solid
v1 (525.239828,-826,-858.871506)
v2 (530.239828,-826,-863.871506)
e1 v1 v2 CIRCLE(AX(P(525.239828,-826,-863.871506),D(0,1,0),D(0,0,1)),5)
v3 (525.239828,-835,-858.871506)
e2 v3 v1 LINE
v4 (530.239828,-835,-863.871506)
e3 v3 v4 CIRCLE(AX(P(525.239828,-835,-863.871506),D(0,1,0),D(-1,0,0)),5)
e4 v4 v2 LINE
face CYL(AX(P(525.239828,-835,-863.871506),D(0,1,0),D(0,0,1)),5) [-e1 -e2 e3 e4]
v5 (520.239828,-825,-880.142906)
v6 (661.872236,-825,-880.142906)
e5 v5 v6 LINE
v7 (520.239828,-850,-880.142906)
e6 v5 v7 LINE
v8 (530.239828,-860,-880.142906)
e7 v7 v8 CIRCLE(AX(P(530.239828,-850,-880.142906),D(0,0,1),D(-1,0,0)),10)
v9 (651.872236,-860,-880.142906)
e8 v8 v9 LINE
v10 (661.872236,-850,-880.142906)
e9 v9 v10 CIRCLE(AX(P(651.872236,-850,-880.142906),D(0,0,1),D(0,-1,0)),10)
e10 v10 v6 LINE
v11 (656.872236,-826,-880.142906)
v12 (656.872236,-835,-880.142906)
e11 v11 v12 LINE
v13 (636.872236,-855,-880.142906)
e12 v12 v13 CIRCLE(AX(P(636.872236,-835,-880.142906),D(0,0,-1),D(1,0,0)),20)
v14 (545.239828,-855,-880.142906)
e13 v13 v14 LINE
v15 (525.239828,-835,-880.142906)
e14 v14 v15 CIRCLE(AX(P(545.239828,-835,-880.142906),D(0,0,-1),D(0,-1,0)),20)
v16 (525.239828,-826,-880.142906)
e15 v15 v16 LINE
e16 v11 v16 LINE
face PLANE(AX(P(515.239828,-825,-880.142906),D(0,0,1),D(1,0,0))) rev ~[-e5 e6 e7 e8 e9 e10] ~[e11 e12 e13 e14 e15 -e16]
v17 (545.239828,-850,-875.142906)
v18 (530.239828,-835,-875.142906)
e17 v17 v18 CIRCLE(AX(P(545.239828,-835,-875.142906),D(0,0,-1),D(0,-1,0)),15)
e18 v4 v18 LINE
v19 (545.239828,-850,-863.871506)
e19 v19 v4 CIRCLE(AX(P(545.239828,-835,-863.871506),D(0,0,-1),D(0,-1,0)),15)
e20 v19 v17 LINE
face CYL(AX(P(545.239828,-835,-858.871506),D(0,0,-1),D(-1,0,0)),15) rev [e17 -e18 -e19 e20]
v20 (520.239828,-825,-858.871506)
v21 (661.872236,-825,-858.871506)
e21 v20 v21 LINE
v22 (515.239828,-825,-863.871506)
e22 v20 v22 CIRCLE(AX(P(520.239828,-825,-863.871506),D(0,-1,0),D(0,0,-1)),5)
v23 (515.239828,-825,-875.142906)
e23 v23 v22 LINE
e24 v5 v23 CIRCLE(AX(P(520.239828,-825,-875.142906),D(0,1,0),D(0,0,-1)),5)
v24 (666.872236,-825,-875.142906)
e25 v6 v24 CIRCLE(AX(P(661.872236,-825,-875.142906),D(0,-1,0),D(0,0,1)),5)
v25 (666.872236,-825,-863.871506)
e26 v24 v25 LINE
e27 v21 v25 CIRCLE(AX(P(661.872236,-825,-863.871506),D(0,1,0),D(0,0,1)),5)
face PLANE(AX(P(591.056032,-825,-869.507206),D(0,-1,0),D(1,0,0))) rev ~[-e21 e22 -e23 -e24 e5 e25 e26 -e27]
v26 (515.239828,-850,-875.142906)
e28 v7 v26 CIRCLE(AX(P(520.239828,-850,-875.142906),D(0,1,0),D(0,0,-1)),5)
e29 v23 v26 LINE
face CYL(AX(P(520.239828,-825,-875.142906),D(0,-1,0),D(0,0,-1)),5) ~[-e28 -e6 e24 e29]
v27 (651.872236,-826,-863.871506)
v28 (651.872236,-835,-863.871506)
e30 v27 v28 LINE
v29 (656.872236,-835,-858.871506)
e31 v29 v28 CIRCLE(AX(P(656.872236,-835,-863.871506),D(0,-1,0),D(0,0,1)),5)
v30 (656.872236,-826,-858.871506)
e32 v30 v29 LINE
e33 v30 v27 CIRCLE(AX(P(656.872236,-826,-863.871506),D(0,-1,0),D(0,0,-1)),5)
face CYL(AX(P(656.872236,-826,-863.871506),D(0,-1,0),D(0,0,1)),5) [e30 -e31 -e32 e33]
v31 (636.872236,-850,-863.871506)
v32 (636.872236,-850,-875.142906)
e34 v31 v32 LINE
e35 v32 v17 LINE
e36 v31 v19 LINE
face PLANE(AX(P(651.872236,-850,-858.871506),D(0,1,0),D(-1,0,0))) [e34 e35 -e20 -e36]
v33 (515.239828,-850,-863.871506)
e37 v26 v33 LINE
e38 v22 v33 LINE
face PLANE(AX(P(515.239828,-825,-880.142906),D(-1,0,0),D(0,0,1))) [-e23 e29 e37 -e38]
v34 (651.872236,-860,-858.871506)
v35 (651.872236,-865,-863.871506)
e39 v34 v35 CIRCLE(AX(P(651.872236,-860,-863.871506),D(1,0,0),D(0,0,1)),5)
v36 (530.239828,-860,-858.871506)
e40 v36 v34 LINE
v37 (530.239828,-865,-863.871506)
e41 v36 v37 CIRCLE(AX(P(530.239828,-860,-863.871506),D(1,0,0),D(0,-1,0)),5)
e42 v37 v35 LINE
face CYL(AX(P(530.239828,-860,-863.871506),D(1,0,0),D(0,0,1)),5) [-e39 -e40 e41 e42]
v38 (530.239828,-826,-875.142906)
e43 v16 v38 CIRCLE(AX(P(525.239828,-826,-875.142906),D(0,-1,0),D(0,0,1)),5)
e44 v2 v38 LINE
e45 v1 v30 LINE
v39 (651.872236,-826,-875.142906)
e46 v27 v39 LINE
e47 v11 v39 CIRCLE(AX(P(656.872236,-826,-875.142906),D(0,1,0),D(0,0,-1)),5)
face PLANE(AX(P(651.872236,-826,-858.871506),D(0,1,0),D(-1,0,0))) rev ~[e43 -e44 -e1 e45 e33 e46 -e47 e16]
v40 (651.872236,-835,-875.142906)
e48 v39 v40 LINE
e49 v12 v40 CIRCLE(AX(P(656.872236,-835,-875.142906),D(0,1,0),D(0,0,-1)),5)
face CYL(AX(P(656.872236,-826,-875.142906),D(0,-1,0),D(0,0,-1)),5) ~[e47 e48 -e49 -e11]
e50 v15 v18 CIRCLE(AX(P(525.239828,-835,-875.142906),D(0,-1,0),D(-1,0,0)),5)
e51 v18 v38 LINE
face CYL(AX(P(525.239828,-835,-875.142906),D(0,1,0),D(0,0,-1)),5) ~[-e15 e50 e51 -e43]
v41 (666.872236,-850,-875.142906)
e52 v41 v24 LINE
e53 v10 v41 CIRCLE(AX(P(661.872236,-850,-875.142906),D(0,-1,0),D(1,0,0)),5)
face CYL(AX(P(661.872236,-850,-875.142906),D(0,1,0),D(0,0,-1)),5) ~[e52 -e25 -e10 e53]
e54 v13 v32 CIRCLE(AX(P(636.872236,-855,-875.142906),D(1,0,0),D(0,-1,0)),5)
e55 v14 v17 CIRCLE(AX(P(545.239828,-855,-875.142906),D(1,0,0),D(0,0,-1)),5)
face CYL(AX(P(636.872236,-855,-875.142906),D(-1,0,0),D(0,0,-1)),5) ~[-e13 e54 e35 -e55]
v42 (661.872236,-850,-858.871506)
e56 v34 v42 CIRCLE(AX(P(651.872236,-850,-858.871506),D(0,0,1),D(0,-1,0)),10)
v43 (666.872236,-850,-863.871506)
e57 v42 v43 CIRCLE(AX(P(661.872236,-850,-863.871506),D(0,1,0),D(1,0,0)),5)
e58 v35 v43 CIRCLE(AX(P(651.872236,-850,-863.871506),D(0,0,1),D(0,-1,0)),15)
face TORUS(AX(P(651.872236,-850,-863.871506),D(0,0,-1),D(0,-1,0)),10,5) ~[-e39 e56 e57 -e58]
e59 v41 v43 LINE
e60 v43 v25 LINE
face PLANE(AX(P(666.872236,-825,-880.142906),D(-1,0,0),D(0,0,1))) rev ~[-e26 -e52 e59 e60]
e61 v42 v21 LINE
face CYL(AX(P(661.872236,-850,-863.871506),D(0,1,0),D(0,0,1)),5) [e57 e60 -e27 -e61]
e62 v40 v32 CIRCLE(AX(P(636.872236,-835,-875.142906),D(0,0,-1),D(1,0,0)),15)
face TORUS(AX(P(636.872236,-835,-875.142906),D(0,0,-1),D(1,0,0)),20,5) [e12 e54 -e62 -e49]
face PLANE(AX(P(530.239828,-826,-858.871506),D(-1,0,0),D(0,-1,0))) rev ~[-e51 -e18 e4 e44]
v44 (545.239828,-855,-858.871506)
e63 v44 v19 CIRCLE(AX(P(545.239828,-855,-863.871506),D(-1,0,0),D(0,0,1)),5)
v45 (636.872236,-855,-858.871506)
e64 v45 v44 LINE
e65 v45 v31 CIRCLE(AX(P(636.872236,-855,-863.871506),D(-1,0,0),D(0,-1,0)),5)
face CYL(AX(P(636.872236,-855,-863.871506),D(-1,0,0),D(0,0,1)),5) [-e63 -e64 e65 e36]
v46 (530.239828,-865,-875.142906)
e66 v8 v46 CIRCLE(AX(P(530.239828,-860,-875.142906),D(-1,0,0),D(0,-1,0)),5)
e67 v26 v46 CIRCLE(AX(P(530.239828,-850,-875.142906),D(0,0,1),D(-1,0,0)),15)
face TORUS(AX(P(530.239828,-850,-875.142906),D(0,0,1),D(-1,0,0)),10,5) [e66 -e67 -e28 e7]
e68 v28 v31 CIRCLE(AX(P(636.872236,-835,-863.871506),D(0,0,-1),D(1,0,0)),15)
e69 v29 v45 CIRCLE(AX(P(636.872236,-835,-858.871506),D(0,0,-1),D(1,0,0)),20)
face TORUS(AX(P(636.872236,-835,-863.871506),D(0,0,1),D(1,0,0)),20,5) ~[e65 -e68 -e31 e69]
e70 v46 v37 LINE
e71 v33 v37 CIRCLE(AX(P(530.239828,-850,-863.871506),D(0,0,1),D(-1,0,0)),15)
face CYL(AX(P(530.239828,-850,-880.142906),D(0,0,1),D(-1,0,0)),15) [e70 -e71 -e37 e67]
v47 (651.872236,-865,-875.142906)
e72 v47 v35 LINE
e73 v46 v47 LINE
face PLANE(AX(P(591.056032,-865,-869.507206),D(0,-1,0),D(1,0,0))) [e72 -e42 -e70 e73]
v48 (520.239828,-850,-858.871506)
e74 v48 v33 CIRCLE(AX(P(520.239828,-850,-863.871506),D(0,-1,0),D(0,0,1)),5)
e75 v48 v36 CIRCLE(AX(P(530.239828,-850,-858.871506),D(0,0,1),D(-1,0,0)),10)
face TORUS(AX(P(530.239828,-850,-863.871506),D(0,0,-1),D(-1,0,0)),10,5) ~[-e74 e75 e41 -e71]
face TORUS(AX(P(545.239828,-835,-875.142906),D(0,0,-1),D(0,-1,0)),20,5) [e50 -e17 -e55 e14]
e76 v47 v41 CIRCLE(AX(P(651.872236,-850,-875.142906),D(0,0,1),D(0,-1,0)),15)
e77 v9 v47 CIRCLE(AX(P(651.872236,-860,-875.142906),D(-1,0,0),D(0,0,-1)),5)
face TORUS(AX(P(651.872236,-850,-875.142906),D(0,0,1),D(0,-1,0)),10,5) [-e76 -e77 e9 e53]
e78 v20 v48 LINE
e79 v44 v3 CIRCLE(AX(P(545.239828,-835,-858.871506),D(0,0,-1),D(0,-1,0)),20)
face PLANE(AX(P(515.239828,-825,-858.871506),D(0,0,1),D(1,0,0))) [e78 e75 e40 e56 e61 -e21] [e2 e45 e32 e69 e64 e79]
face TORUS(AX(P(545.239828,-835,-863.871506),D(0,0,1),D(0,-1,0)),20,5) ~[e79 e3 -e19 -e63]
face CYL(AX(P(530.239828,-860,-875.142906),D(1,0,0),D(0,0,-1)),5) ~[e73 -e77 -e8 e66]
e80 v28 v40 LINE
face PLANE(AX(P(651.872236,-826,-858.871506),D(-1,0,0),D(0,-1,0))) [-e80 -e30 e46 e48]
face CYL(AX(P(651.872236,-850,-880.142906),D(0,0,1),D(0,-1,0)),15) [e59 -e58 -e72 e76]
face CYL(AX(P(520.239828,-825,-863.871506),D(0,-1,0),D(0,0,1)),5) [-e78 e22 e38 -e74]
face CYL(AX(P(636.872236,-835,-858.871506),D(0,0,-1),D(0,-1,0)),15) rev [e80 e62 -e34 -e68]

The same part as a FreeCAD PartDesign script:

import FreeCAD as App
import Part
import Sketcher
Q = App.Units.Quantity


def edges_at(feature, points):
    """Names of the edges that pass closest to the given points."""
    edges = feature.Shape.Edges
    near = lambda p: min(range(len(edges)), key=lambda i: edges[i].distToShape(Part.Vertex(*p))[0])
    return sorted({f"Edge{near(p) + 1}" for p in points})


def add_polygon(sketch, points):
    """Adds a closed chain of lines whose ends are joined by coincident constraints."""
    first, n = sketch.GeometryCount, len(points)
    for a, b in zip(points, points[1:] + points[:1]):
        sketch.addGeometry(Part.LineSegment(App.Vector(*a, 0), App.Vector(*b, 0)), False)
    for i in range(n):
        sketch.addConstraint(Sketcher.Constraint("Coincident", first + i, 2, first + (i + 1) % n, 1))

doc = App.newDocument("Part")
body = doc.addObject("PartDesign::Body", "Body")

sketch1 = body.newObject("Sketcher::SketchObject", "Sketch")
sketch1.AttachmentSupport = (doc.getObject("XZ_Plane"), [""])
sketch1.MapMode = "FlatFace"
sketch1.AttachmentOffset = App.Placement(App.Vector(0, 0, 825), App.Rotation())
add_polygon(sketch1, [(515, -859), (515, -880), (667, -880), (667, -859)])
sketch1.addConstraint([
    Sketcher.Constraint("Vertical", 0),
    Sketcher.Constraint("Horizontal", 1),
    Sketcher.Constraint("Vertical", 2),
    Sketcher.Constraint("Horizontal", 3),
    Sketcher.Constraint("DistanceY", 0, 2, 0, 1, Q("21.2714 mm")),
    Sketcher.Constraint("DistanceX", 1, 1, 1, 2, Q("151.632409 mm")),
    Sketcher.Constraint("DistanceX", -1, 1, 0, 2, Q("515.239828 mm")),
    Sketcher.Constraint("DistanceY", 0, 2, -1, 1, Q("880.142906 mm")),
])
pad1 = body.newObject("PartDesign::Pad", "Pad")
pad1.Profile = sketch1
pad1.Length = 40

sketch2 = body.newObject("Sketcher::SketchObject", "Sketch001")
sketch2.AttachmentSupport = (doc.getObject("XY_Plane"), [""])
sketch2.MapMode = "FlatFace"
sketch2.AttachmentOffset = App.Placement(App.Vector(0, 0, -858.871506), App.Rotation())
add_polygon(sketch2, [(652, -850), (652, -826), (530, -826), (530, -850)])
sketch2.addConstraint([
    Sketcher.Constraint("Vertical", 0),
    Sketcher.Constraint("Horizontal", 1),
    Sketcher.Constraint("Vertical", 2),
    Sketcher.Constraint("Horizontal", 3),
    Sketcher.Constraint("DistanceY", 0, 1, 0, 2, Q("24 mm")),
    Sketcher.Constraint("DistanceY", 0, 2, -1, 1, Q("826 mm")),
    Sketcher.Constraint("DistanceX", 1, 2, 1, 1, Q("121.632409 mm")),
    Sketcher.Constraint("DistanceX", -1, 1, 0, 2, Q("651.872236 mm")),
])
pocket1 = body.newObject("PartDesign::Pocket", "Pocket")
pocket1.Profile = sketch2
pocket1.Type = "ThroughAll"
doc.recompute()

fillet = body.newObject("PartDesign::Fillet", "Fillet")
fillet.Base = (pocket1, edges_at(pocket1, [
    (515.24, -865, -869.507),
    (666.872, -865, -869.507),
    (530.24, -850, -869.507),
    (651.872, -850, -869.507),
]))
fillet.Radius = 15
doc.recompute()

fillet2 = body.newObject("PartDesign::Fillet", "Fillet001")
fillet2.Base = (fillet, edges_at(fillet, [
    (591.056, -865, -858.872),
    (591.056, -850, -858.872),
    (591.056, -850, -880.143),
    (591.056, -865, -880.143),
]))
fillet2.Radius = 5

doc.recompute()
